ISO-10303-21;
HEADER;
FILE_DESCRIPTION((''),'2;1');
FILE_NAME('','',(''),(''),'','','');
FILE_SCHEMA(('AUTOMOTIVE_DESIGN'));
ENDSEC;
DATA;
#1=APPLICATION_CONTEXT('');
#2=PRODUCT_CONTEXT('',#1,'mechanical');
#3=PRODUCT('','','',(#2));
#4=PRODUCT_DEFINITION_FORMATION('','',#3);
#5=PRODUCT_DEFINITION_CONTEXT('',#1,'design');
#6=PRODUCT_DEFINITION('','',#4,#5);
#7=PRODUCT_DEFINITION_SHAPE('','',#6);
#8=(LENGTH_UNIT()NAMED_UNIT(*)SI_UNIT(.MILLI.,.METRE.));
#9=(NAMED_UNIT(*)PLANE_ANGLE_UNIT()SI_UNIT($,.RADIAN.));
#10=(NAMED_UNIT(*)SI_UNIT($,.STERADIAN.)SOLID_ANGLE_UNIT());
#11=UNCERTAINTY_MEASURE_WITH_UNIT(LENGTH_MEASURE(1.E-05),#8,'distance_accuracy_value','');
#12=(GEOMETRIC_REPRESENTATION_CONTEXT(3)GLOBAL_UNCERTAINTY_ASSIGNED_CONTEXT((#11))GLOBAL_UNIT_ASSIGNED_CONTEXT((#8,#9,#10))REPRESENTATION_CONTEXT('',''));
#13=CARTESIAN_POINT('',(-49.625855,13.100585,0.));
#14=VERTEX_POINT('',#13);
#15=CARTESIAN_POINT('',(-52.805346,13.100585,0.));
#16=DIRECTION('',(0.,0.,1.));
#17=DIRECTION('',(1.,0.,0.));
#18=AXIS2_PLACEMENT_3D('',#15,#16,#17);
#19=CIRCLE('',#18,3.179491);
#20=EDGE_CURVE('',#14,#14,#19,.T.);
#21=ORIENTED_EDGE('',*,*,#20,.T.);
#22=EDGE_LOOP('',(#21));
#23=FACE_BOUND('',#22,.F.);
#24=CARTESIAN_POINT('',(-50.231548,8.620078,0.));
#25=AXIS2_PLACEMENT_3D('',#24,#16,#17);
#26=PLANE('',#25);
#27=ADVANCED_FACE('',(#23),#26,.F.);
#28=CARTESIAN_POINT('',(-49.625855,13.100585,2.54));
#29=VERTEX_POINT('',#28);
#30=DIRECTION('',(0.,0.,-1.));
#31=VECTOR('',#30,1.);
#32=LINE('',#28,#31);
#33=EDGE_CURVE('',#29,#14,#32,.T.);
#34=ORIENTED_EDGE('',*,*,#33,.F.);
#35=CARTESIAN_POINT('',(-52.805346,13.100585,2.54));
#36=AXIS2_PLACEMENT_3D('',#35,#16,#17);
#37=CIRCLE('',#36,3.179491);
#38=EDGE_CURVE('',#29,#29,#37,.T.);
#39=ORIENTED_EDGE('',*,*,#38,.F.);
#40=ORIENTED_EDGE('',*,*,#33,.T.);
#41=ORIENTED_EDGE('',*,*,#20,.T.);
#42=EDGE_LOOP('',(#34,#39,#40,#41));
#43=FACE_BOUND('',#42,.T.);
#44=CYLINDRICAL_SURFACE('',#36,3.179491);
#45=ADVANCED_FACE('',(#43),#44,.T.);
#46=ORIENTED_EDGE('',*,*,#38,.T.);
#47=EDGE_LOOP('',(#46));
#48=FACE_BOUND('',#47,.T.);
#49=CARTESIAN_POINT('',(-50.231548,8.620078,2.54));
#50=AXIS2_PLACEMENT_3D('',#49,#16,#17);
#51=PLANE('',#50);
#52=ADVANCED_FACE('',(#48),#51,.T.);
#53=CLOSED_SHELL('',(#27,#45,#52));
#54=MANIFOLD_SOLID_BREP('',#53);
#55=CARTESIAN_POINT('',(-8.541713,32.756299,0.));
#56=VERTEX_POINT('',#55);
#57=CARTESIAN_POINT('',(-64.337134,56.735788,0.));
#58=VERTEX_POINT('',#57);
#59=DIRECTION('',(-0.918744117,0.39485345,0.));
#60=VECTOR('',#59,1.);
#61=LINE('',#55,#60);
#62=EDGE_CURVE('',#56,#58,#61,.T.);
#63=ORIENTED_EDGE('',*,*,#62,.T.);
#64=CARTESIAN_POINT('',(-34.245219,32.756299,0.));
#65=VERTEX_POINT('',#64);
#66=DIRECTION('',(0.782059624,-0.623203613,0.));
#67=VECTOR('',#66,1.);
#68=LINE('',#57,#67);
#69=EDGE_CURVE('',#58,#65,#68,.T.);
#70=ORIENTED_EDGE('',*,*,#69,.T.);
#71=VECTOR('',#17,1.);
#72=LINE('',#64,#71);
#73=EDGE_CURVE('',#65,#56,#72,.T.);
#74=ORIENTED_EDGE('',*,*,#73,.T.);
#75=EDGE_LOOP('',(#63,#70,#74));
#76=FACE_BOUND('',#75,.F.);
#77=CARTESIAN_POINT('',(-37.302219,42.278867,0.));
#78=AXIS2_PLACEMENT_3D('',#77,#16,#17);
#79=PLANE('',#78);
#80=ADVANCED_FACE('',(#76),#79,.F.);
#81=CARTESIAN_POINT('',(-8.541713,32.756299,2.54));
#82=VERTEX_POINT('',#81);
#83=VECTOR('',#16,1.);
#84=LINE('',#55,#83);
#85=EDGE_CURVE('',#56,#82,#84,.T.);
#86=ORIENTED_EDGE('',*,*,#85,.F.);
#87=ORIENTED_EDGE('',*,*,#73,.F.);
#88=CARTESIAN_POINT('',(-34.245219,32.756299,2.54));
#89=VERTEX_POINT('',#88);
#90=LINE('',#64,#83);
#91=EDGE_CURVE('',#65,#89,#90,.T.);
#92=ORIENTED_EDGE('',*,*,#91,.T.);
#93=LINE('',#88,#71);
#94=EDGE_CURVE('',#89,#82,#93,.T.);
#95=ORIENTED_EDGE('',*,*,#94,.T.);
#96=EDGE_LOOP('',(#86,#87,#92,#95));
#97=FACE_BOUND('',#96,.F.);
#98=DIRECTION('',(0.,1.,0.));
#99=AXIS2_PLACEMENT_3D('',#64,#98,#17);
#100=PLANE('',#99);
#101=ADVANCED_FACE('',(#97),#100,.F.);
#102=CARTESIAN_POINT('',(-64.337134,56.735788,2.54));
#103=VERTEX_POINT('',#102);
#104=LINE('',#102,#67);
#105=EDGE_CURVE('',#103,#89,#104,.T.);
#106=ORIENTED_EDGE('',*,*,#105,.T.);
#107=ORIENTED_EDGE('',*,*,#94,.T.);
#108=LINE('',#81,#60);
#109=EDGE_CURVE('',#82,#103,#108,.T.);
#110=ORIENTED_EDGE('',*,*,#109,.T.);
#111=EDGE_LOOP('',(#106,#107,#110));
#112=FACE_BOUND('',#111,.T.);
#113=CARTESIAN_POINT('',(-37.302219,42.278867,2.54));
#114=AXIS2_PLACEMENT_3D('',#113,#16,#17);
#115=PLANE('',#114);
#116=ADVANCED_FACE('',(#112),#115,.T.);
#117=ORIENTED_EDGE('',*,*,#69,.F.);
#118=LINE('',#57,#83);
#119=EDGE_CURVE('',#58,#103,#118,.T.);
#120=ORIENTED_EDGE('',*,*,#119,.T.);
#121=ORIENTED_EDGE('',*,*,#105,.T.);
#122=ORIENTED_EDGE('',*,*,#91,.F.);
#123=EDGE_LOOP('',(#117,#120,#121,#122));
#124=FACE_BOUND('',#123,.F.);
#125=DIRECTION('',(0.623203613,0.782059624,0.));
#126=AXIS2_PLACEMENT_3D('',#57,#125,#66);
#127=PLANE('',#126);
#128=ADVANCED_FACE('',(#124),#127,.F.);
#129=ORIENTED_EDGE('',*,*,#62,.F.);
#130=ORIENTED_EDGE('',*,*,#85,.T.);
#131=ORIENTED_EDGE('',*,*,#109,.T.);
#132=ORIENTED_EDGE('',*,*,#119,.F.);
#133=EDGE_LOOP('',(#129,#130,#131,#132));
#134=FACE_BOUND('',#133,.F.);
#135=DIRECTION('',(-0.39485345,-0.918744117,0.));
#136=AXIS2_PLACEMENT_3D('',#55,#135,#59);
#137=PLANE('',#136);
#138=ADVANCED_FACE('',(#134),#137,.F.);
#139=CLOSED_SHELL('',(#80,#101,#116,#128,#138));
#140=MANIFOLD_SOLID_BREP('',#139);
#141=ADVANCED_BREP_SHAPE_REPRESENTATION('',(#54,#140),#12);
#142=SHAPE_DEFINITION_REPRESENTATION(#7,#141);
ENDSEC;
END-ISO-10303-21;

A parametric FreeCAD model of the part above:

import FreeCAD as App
import Part
import Sketcher
from FreeCAD import Vector
Q = App.Units.Quantity


def add_polygon(sketch, points):
    """Adds a closed chain of lines whose ends are joined by coincident constraints."""
    first, n = sketch.GeometryCount, len(points)
    for a, b in zip(points, points[1:] + points[:1]):
        sketch.addGeometry(Part.LineSegment(App.Vector(*a, 0), App.Vector(*b, 0)), False)
    for i in range(n):
        sketch.addConstraint(Sketcher.Constraint("Coincident", first + i, 2, first + (i + 1) % n, 1))

doc = App.newDocument("Part")
body = doc.addObject("PartDesign::Body", "Body")
body.AllowCompound = True

sketch1 = doc.addObject("Sketcher::SketchObject", "Sketch")
body.addObject(sketch1)
sketch1.AttachmentSupport = (doc.XY_Plane, [""])
sketch1.MapMode = "FlatFace"
add_polygon(sketch1, [(-9, 33), (-64, 57), (-34, 33)])
add_polygon(sketch1, [(-60, 19), (-60, -2), (-41, -2), (-41, 19)])
sketch1.addConstraint(Sketcher.Constraint("Horizontal", 2))
sketch1.addConstraint(Sketcher.Constraint("Vertical", 3))
sketch1.addConstraint(Sketcher.Constraint("Horizontal", 4))
sketch1.addConstraint(Sketcher.Constraint("Vertical", 5))
sketch1.addConstraint(Sketcher.Constraint("Horizontal", 6))
sketch1.addConstraint(Sketcher.Constraint("Distance", 0, Q("60.730099 mm")))
sketch1.addConstraint(Sketcher.Constraint("DistanceY", 3, 2, 3, 1, Q("20.37473 mm")))
sketch1.addConstraint(Sketcher.Constraint("DistanceY", -1, 1, 1, 2, Q("32.756299 mm")))
sketch1.addConstraint(Sketcher.Constraint("DistanceX", 2, 1, 2, 2, Q("25.703506 mm")))
sketch1.addConstraint(Sketcher.Constraint("DistanceX", 4, 1, 4, 2, Q("18.807444 mm")))
sketch1.addConstraint(Sketcher.Constraint("DistanceX", 1, 2, -1, 1, Q("34.245219 mm")))
sketch1.addConstraint(Sketcher.Constraint("DistanceX", 3, 2, -1, 1, Q("59.63527 mm")))
sketch1.addConstraint(Sketcher.Constraint("DistanceY", 1, 2, 0, 2, Q("23.979489 mm")))
sketch1.addConstraint(Sketcher.Constraint("DistanceY", 3, 2, -1, 1, Q("1.567287 mm")))
pad1 = doc.addObject("PartDesign::Pad", "Pad")
body.addObject(pad1)
pad1.Profile = sketch1
pad1.Length = Q("0.1 in")

sketch2 = doc.addObject("Sketcher::SketchObject", "Sketch001")
body.addObject(sketch2)
sketch2.AttachmentSupport = (doc.XY_Plane, [""])
sketch2.MapMode = "FlatFace"
sketch2.AttachmentOffset = App.Placement(Vector(0, 0, 0.1 * 25.4), App.Rotation())
add_polygon(sketch2, [(-59.6, 18.8), (-59.6, -1.6), (-40.8, -1.6), (-40.8, 18.8)])
sketch2.addGeometry(Part.Circle(Vector(-52.8, 13.1, 0), Vector(0, 0, 1), 3.2), False)
sketch2.addConstraint(Sketcher.Constraint("Vertical", 0))
sketch2.addConstraint(Sketcher.Constraint("Horizontal", 1))
sketch2.addConstraint(Sketcher.Constraint("Vertical", 2))
sketch2.addConstraint(Sketcher.Constraint("Horizontal", 3))
sketch2.addConstraint(Sketcher.Constraint("Diameter", 4, Q("6.358982 mm")))
sketch2.addConstraint(Sketcher.Constraint("DistanceY", 0, 2, 0, 1, Q("20.37473 mm")))
sketch2.addConstraint(Sketcher.Constraint("DistanceX", 1, 1, 1, 2, Q("18.807444 mm")))
sketch2.addConstraint(Sketcher.Constraint("DistanceX", 0, 2, -1, 1, Q("59.63527 mm")))
sketch2.addConstraint(Sketcher.Constraint("DistanceX", 4, 3, 1, 2, Q("11.97752 mm")))
sketch2.addConstraint(Sketcher.Constraint("DistanceY", -1, 1, 4, 3, Q("13.100585 mm")))
sketch2.addConstraint(Sketcher.Constraint("DistanceY", 0, 2, -1, 1, Q("1.567287 mm")))
pocket1 = doc.addObject("PartDesign::Pocket", "Pocket")
body.addObject(pocket1)
pocket1.Profile = sketch2
pocket1.Length = Q("1 in")

doc.recompute()
